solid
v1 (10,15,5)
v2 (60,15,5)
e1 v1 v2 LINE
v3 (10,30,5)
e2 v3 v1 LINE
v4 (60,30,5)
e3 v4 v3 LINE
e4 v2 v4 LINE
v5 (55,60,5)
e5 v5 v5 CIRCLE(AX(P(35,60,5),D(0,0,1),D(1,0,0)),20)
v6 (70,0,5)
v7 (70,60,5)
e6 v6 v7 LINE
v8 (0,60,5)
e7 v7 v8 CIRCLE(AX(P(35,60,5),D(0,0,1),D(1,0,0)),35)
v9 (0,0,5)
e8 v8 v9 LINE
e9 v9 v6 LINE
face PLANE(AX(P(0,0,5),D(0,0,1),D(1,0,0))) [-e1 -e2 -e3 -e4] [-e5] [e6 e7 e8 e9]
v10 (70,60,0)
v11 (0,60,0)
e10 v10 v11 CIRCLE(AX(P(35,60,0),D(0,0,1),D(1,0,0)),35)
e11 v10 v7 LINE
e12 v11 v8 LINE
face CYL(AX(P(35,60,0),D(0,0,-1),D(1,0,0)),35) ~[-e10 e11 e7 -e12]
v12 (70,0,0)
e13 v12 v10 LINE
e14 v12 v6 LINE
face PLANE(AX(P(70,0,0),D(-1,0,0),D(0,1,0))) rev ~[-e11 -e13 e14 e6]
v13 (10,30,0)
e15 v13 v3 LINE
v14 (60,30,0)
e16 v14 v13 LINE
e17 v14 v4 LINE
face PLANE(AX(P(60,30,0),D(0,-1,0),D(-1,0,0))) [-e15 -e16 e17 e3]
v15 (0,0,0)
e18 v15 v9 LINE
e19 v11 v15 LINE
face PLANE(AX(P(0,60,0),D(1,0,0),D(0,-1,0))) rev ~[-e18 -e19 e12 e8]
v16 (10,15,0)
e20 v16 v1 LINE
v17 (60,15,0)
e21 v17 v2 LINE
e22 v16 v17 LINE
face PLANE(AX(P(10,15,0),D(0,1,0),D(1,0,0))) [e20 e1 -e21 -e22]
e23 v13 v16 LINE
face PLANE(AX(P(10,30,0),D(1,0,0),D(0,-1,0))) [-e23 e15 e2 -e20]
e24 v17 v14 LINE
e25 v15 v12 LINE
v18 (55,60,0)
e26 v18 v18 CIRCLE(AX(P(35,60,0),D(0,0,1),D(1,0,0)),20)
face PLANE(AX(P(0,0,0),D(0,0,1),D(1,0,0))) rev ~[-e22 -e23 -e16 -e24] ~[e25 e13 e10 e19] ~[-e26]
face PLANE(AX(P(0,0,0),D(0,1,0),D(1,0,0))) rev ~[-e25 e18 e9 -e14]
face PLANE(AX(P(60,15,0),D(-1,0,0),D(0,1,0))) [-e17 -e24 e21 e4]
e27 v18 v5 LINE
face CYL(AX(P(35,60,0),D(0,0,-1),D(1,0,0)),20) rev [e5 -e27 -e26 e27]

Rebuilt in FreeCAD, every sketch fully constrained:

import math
import FreeCAD as App
import Part
import Sketcher
from FreeCAD import Vector


def add_polygon(sketch, points):
    """Adds a closed chain of lines whose ends are joined by coincident constraints."""
    first, n = sketch.GeometryCount, len(points)
    for a, b in zip(points, points[1:] + points[:1]):
        sketch.addGeometry(Part.LineSegment(App.Vector(*a, 0), App.Vector(*b, 0)), False)
    for i in range(n):
        sketch.addConstraint(Sketcher.Constraint("Coincident", first + i, 2, first + (i + 1) % n, 1))

doc = App.newDocument("Part")
params = doc.addObject("Spreadsheet::Sheet", "Params")
for row, (alias, value) in enumerate([
    ("sketch1_diameter", "40 mm"),
    ("sketch1_radius", "35 mm"),
    ("sketch1_width", "50 mm"),
    ("sketch1_height", "60 mm"),
    ("sketch1_height2", "15 mm"),
    ("pad1_length", "5 mm"),
], start=1):
    params.set(f"A{row}", alias)
    params.set(f"B{row}", "=" + value)
    params.setAlias(f"B{row}", alias)

body = doc.addObject("PartDesign::Body", "Body")

sketch1 = body.newObject("Sketcher::SketchObject", "Sketch")
sketch1.AttachmentSupport = (doc.getObject("XY_Plane"), [""])
sketch1.MapMode = "FlatFace"
sketch1.addGeometry(Part.LineSegment(Vector(0, 60, 0), Vector(0, 0, 0)), False)
sketch1.addGeometry(Part.LineSegment(Vector(0, 0, 0), Vector(70, 0, 0)), False)
sketch1.addGeometry(Part.LineSegment(Vector(70, 0, 0), Vector(70, 60, 0)), False)
sketch1.addGeometry(Part.ArcOfCircle(Part.Circle(Vector(35, 60, 0), Vector(0, 0, 1), 35), math.radians(0), math.radians(180)), False)
add_polygon(sketch1, [(60, 15), (10, 15), (10, 30), (60, 30)])
sketch1.addGeometry(Part.Circle(Vector(35, 60, 0), Vector(0, 0, 1), 20), False)
sketch1.addConstraint([
    Sketcher.Constraint("Coincident", 0, 2, 1, 1),
    Sketcher.Constraint("Coincident", 1, 2, 2, 1),
    Sketcher.Constraint("Tangent", 2, 2, 3, 1),
    Sketcher.Constraint("Tangent", 3, 2, 0, 1),
    Sketcher.Constraint("Vertical", 0),
    Sketcher.Constraint("Horizontal", 1),
    Sketcher.Constraint("Vertical", 2),
    Sketcher.Constraint("Horizontal", 4),
    Sketcher.Constraint("Vertical", 5),
    Sketcher.Constraint("Horizontal", 6),
    Sketcher.Constraint("Vertical", 7),
    Sketcher.Constraint("Coincident", 0, 2, -1, 1),
    Sketcher.Constraint("Coincident", 8, 3, 3, 3),
    Sketcher.Constraint("Diameter", 8, 40.0),
    Sketcher.Constraint("Radius", 3, 35.0),
    Sketcher.Constraint("DistanceX", 4, 2, 4, 1, 50.0),
    Sketcher.Constraint("DistanceY", 0, 2, 0, 1, 60.0),
    Sketcher.Constraint("DistanceY", 5, 1, 5, 2, 15.0),
    Sketcher.Constraint("DistanceX", -1, 1, 4, 2, 10.0),
    Sketcher.Constraint("DistanceY", -1, 1, 4, 2, 15.0),
])
sketch1.setExpression("Constraints[17]", "Params.sketch1_diameter")
sketch1.setExpression("Constraints[18]", "Params.sketch1_radius")
sketch1.setExpression("Constraints[19]", "Params.sketch1_width")
sketch1.setExpression("Constraints[20]", "Params.sketch1_height")
sketch1.setExpression("Constraints[21]", "Params.sketch1_height2")
pad1 = body.newObject("PartDesign::Pad", "Pad")
pad1.Profile = sketch1
pad1.setExpression("Length", "Params.pad1_length")

doc.recompute()
